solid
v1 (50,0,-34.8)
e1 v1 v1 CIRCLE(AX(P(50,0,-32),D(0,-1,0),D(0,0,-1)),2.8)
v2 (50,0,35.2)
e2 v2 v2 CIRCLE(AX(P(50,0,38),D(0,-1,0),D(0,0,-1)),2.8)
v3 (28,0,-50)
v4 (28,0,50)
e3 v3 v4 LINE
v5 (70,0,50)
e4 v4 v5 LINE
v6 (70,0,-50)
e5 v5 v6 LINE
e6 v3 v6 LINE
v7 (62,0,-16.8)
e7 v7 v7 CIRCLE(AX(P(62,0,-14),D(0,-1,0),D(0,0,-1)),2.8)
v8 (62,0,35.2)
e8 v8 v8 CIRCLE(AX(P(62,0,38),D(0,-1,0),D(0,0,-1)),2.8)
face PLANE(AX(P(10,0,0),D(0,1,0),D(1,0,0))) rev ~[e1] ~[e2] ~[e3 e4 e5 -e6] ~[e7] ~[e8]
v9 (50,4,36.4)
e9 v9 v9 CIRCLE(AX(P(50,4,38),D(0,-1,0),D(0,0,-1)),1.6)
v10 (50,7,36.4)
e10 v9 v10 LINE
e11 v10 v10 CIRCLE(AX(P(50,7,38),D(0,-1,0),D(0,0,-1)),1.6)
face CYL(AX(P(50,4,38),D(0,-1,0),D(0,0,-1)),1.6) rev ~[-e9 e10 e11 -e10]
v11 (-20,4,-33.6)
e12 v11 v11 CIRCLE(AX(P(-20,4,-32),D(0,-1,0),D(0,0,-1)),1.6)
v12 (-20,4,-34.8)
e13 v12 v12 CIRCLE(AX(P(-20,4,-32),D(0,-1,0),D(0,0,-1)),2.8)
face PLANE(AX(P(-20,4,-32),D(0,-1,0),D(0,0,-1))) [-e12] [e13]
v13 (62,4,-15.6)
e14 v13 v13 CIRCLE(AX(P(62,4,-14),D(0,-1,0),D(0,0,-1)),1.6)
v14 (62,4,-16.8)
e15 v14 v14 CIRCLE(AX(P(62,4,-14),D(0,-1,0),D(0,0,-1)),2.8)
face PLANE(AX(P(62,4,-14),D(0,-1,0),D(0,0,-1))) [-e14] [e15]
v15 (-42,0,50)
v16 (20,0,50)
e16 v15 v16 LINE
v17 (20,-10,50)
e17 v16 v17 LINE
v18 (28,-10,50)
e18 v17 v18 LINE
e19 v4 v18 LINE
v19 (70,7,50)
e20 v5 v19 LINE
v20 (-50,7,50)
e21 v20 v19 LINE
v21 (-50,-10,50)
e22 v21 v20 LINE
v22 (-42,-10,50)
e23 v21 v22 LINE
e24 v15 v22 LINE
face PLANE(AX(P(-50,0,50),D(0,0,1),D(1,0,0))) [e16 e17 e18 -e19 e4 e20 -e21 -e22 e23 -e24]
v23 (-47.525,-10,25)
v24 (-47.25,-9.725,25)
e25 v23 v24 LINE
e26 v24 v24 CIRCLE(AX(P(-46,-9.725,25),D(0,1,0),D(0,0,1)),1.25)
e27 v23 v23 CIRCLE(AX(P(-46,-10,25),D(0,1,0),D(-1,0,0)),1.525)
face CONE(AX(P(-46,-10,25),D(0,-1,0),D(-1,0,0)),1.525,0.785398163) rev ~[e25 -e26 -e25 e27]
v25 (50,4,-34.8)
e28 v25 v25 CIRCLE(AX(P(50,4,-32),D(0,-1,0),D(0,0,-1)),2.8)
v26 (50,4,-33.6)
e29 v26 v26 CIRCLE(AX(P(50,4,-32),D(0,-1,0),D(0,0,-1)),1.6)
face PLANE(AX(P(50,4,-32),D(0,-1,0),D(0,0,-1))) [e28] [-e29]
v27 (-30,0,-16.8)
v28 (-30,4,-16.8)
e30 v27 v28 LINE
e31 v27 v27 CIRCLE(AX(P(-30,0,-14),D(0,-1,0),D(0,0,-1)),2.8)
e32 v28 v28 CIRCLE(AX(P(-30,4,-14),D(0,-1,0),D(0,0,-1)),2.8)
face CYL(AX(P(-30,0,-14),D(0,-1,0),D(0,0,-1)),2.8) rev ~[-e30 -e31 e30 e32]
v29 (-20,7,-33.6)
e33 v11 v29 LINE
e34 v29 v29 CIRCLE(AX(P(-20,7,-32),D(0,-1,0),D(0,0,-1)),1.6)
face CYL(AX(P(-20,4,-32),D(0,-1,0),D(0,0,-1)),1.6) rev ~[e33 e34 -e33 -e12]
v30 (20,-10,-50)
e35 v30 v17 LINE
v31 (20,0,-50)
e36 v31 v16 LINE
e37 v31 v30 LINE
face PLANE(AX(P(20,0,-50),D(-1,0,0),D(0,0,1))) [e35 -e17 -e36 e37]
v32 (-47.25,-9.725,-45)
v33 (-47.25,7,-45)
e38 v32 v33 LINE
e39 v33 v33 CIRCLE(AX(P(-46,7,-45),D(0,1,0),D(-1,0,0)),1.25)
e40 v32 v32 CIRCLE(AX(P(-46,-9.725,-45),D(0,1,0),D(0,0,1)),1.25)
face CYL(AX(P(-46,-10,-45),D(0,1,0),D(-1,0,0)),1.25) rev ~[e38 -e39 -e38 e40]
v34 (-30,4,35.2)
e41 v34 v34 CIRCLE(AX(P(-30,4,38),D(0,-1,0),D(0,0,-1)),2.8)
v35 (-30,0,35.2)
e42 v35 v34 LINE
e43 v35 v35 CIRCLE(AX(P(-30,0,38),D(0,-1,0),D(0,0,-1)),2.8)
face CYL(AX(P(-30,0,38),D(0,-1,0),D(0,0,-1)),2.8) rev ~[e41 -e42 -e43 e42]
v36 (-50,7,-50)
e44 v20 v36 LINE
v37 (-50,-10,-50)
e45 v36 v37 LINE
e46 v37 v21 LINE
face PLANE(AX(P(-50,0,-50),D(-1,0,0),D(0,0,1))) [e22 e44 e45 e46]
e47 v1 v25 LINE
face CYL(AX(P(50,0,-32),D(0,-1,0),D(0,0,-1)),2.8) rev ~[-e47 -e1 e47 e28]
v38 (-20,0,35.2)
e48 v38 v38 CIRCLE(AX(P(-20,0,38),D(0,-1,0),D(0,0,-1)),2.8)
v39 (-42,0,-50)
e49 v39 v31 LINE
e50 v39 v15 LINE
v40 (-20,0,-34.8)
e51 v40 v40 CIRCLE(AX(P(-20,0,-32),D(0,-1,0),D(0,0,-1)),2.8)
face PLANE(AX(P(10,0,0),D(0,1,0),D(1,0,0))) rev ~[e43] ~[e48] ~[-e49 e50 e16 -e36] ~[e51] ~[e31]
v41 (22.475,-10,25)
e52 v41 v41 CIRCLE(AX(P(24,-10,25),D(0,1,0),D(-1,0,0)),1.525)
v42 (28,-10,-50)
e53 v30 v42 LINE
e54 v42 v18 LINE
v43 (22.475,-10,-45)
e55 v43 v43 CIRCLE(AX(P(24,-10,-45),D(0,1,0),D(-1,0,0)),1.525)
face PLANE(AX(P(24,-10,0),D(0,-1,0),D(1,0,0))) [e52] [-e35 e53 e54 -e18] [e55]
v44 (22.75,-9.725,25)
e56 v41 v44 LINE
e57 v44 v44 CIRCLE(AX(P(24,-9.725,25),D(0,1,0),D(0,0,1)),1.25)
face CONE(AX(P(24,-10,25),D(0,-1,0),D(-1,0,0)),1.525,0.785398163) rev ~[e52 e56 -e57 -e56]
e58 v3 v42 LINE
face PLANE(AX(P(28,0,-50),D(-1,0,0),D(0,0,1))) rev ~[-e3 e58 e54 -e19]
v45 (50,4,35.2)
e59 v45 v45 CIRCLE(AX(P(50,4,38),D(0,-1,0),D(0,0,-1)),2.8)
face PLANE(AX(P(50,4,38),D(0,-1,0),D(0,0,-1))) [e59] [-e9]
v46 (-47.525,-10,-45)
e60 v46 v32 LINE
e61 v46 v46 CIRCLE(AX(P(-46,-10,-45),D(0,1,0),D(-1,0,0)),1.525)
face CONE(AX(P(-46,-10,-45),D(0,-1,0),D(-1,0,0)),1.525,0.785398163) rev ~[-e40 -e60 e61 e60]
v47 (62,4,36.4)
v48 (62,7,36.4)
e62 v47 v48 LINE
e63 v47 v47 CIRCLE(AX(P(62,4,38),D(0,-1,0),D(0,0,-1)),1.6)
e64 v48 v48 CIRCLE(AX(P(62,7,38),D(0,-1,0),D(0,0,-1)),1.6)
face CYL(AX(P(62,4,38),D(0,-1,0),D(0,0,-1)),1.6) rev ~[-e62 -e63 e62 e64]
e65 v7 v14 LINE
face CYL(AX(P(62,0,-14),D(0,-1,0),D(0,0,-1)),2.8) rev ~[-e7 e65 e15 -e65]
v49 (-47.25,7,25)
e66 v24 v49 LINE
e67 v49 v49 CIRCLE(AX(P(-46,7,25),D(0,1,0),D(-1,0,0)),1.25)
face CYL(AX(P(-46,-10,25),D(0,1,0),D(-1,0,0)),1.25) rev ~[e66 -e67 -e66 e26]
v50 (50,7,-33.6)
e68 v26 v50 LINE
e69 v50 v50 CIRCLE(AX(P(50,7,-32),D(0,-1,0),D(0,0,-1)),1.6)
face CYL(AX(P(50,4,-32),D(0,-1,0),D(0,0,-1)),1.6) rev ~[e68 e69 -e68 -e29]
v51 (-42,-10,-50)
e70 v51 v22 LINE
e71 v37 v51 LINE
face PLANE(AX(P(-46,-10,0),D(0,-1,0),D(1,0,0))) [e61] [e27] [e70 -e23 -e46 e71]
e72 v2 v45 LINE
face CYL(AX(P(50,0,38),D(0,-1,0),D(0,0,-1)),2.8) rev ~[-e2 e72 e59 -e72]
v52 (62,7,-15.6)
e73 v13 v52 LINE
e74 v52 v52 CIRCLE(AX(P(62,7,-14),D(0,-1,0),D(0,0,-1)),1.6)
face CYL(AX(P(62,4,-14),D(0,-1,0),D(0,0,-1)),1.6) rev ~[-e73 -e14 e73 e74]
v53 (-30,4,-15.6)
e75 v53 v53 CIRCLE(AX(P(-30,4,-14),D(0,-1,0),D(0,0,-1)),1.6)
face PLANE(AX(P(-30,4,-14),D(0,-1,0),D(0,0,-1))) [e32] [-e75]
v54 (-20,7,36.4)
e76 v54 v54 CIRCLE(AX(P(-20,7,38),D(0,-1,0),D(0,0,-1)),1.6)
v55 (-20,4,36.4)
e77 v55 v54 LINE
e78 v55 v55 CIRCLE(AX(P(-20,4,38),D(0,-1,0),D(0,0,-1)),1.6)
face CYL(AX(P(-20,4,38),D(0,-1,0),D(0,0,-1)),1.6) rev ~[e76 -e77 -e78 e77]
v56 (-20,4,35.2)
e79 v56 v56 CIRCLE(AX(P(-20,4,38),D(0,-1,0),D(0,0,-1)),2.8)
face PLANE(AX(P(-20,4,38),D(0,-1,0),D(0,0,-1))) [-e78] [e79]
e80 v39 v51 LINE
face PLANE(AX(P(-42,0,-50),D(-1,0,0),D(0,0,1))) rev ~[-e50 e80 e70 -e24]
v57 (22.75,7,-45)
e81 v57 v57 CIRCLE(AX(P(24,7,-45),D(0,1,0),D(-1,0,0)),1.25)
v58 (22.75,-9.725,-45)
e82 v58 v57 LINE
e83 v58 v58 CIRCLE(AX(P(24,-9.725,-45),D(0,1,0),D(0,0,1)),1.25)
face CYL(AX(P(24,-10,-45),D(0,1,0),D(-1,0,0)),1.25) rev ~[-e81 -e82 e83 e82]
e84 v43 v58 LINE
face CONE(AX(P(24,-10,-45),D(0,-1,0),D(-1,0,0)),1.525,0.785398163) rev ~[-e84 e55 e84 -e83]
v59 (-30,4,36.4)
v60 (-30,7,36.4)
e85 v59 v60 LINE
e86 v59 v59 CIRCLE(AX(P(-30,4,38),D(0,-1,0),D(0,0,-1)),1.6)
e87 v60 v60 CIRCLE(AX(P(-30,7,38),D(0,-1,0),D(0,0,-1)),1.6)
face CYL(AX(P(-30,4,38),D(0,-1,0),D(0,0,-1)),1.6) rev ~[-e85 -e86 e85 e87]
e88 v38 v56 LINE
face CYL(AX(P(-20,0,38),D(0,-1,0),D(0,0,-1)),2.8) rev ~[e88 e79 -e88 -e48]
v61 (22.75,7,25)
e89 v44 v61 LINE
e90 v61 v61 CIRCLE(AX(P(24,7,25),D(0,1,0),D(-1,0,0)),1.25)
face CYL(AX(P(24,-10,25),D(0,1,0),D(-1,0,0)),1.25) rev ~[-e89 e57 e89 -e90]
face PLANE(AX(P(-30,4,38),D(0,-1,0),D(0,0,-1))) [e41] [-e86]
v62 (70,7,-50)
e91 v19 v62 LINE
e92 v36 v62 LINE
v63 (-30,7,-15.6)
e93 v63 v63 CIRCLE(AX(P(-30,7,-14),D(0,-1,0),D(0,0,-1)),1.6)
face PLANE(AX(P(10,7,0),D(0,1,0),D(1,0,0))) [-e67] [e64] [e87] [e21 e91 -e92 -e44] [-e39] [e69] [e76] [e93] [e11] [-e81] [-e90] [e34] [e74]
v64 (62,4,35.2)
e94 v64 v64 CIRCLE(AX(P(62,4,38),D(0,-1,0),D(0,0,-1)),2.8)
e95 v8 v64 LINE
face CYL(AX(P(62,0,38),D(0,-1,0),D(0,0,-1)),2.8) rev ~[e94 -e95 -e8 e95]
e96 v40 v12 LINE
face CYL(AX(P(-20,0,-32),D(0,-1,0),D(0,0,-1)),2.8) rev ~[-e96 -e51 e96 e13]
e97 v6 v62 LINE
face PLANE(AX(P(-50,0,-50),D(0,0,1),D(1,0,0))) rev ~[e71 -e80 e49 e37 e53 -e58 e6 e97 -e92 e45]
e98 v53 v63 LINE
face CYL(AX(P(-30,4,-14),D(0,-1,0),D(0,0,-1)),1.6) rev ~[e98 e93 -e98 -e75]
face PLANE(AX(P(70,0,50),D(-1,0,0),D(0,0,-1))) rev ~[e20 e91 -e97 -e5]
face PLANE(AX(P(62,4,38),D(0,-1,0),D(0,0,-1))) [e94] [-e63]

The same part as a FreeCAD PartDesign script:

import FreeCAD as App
import Part
import Sketcher
from FreeCAD import Vector


def add_polygon(sketch, points):
    """Adds a closed chain of lines whose ends are joined by coincident constraints."""
    first, n = sketch.GeometryCount, len(points)
    for a, b in zip(points, points[1:] + points[:1]):
        sketch.addGeometry(Part.LineSegment(App.Vector(*a, 0), App.Vector(*b, 0)), False)
    for i in range(n):
        sketch.addConstraint(Sketcher.Constraint("Coincident", first + i, 2, first + (i + 1) % n, 1))

doc = App.newDocument("Part")
body = doc.addObject("PartDesign::Body", "Body")

# Sketch on XZ plane
sketch1 = body.newObject("Sketcher::SketchObject", "Sketch")
sketch1.AttachmentSupport = (doc.getObject("XZ_Plane"), [""])
sketch1.MapMode = "FlatFace"
add_polygon(sketch1, [(-50, -50), (-50, 50), (70, 50), (70, -50)])  # lines 0-3
sketch1.addConstraint(Sketcher.Constraint("Vertical", 0))
sketch1.addConstraint(Sketcher.Constraint("Horizontal", 1))
sketch1.addConstraint(Sketcher.Constraint("Vertical", 2))
sketch1.addConstraint(Sketcher.Constraint("Horizontal", 3))
sketch1.addConstraint(Sketcher.Constraint("DistanceX", 1, 1, 1, 2, 120.0))
sketch1.addConstraint(Sketcher.Constraint("DistanceY", 0, 1, 0, 2, 100.0))
sketch1.addConstraint(Sketcher.Constraint("DistanceX", 0, 2, -1, 1, 50.0))
sketch1.addConstraint(Sketcher.Constraint("DistanceY", -1, 1, 0, 2, 50.0))
pad1 = body.newObject("PartDesign::Pad", "Pad")
pad1.Profile = sketch1
pad1.Length = 7
pad1.Reversed = True

# Sketch on XZ plane
sketch2 = body.newObject("Sketcher::SketchObject", "Sketch001")
sketch2.AttachmentSupport = (doc.getObject("XZ_Plane"), [""])
sketch2.MapMode = "FlatFace"
sketch2.addGeometry(Part.Circle(Vector(62, 38, 0), Vector(0, 0, 1), 2.8), False)
sketch2.addGeometry(Part.Circle(Vector(-30, 38, 0), Vector(0, 0, 1), 2.8), False)
sketch2.addGeometry(Part.Circle(Vector(-30, -14, 0), Vector(0, 0, 1), 2.8), False)
sketch2.addGeometry(Part.Circle(Vector(62, -14, 0), Vector(0, 0, 1), 2.8), False)
sketch2.addGeometry(Part.Circle(Vector(-20, 38, 0), Vector(0, 0, 1), 2.8), False)
sketch2.addGeometry(Part.Circle(Vector(50, 38, 0), Vector(0, 0, 1), 2.8), False)
sketch2.addGeometry(Part.Circle(Vector(50, -32, 0), Vector(0, 0, 1), 2.8), False)
sketch2.addGeometry(Part.Circle(Vector(-20, -32, 0), Vector(0, 0, 1), 2.8), False)
sketch2.addConstraint(Sketcher.Constraint("Equal", 0, 1))
sketch2.addConstraint(Sketcher.Constraint("Equal", 1, 2))
sketch2.addConstraint(Sketcher.Constraint("Equal", 2, 3))
sketch2.addConstraint(Sketcher.Constraint("Equal", 3, 4))
sketch2.addConstraint(Sketcher.Constraint("Equal", 4, 5))
sketch2.addConstraint(Sketcher.Constraint("Equal", 5, 6))
sketch2.addConstraint(Sketcher.Constraint("Equal", 6, 7))
sketch2.addConstraint(Sketcher.Constraint("Horizontal", 0, 3, 1, 3))
sketch2.addConstraint(Sketcher.Constraint("Horizontal", 2, 3, 3, 3))
sketch2.addConstraint(Sketcher.Constraint("Horizontal", 1, 3, 4, 3))
sketch2.addConstraint(Sketcher.Constraint("Horizontal", 4, 3, 5, 3))
sketch2.addConstraint(Sketcher.Constraint("Horizontal", 6, 3, 7, 3))
sketch2.addConstraint(Sketcher.Constraint("Vertical", 1, 3, 2, 3))
sketch2.addConstraint(Sketcher.Constraint("Vertical", 0, 3, 3, 3))
sketch2.addConstraint(Sketcher.Constraint("Vertical", 5, 3, 6, 3))
sketch2.addConstraint(Sketcher.Constraint("Vertical", 4, 3, 7, 3))
sketch2.addConstraint(Sketcher.Constraint("Diameter", 0, 5.6))
sketch2.addConstraint(Sketcher.Constraint("DistanceX", -1, 1, 0, 3, 62.0))
sketch2.addConstraint(Sketcher.Constraint("DistanceY", -1, 1, 0, 3, 38.0))
sketch2.addConstraint(Sketcher.Constraint("DistanceX", 1, 3, -1, 1, 30.0))
sketch2.addConstraint(Sketcher.Constraint("DistanceY", 2, 3, -1, 1, 14.0))
sketch2.addConstraint(Sketcher.Constraint("DistanceX", 4, 3, -1, 1, 20.0))
sketch2.addConstraint(Sketcher.Constraint("DistanceX", -1, 1, 5, 3, 50.0))
sketch2.addConstraint(Sketcher.Constraint("DistanceY", 6, 3, -1, 1, 32.0))
pocket1 = body.newObject("PartDesign::Pocket", "Pocket")
pocket1.Profile = sketch2
pocket1.Length = 4

# Sketch on XZ plane
sketch3 = body.newObject("Sketcher::SketchObject", "Sketch002")
sketch3.AttachmentSupport = (doc.getObject("XZ_Plane"), [""])
sketch3.MapMode = "FlatFace"
sketch3.AttachmentOffset = App.Placement(Vector(0, 0, -4), App.Rotation())
sketch3.addGeometry(Part.Circle(Vector(62, 38, 0), Vector(0, 0, 1), 1.6), False)
sketch3.addConstraint(Sketcher.Constraint("Diameter", 0, 3.2))
sketch3.addConstraint(Sketcher.Constraint("DistanceX", -1, 1, 0, 3, 62.0))
sketch3.addConstraint(Sketcher.Constraint("DistanceY", -1, 1, 0, 3, 38.0))
pocket2 = body.newObject("PartDesign::Pocket", "Pocket001")
pocket2.Profile = sketch3
pocket2.Type = "UpToFirst"

# Sketch on XZ plane
sketch4 = body.newObject("Sketcher::SketchObject", "Sketch003")
sketch4.AttachmentSupport = (doc.getObject("XZ_Plane"), [""])
sketch4.MapMode = "FlatFace"
sketch4.AttachmentOffset = App.Placement(Vector(0, 0, -4), App.Rotation())
sketch4.addGeometry(Part.Circle(Vector(-30, 38, 0), Vector(0, 0, 1), 1.6), False)
sketch4.addConstraint(Sketcher.Constraint("Diameter", 0, 3.2))
sketch4.addConstraint(Sketcher.Constraint("DistanceX", 0, 3, -1, 1, 30.0))
sketch4.addConstraint(Sketcher.Constraint("DistanceY", -1, 1, 0, 3, 38.0))
pocket3 = body.newObject("PartDesign::Pocket", "Pocket002")
pocket3.Profile = sketch4
pocket3.Type = "UpToFirst"

# Sketch on XZ plane
sketch5 = body.newObject("Sketcher::SketchObject", "Sketch004")
sketch5.AttachmentSupport = (doc.getObject("XZ_Plane"), [""])
sketch5.MapMode = "FlatFace"
sketch5.AttachmentOffset = App.Placement(Vector(0, 0, -4), App.Rotation())
sketch5.addGeometry(Part.Circle(Vector(-30, -14, 0), Vector(0, 0, 1), 1.6), False)
sketch5.addConstraint(Sketcher.Constraint("Diameter", 0, 3.2))
sketch5.addConstraint(Sketcher.Constraint("DistanceX", 0, 3, -1, 1, 30.0))
sketch5.addConstraint(Sketcher.Constraint("DistanceY", 0, 3, -1, 1, 14.0))
pocket4 = body.newObject("PartDesign::Pocket", "Pocket003")
pocket4.Profile = sketch5
pocket4.Type = "UpToFirst"

# Sketch on XZ plane
sketch6 = body.newObject("Sketcher::SketchObject", "Sketch005")
sketch6.AttachmentSupport = (doc.getObject("XZ_Plane"), [""])
sketch6.MapMode = "FlatFace"
sketch6.AttachmentOffset = App.Placement(Vector(0, 0, -4), App.Rotation())
sketch6.addGeometry(Part.Circle(Vector(62, -14, 0), Vector(0, 0, 1), 1.6), False)
sketch6.addConstraint(Sketcher.Constraint("Diameter", 0, 3.2))
sketch6.addConstraint(Sketcher.Constraint("DistanceX", -1, 1, 0, 3, 62.0))
sketch6.addConstraint(Sketcher.Constraint("DistanceY", 0, 3, -1, 1, 14.0))
pocket5 = body.newObject("PartDesign::Pocket", "Pocket004")
pocket5.Profile = sketch6
pocket5.Type = "UpToFirst"

# Sketch on XZ plane
sketch7 = body.newObject("Sketcher::SketchObject", "Sketch006")
sketch7.AttachmentSupport = (doc.getObject("XZ_Plane"), [""])
sketch7.MapMode = "FlatFace"
sketch7.AttachmentOffset = App.Placement(Vector(0, 0, -4), App.Rotation())
sketch7.addGeometry(Part.Circle(Vector(-20, 38, 0), Vector(0, 0, 1), 1.6), False)
sketch7.addConstraint(Sketcher.Constraint("Diameter", 0, 3.2))
sketch7.addConstraint(Sketcher.Constraint("DistanceX", 0, 3, -1, 1, 20.0))
sketch7.addConstraint(Sketcher.Constraint("DistanceY", -1, 1, 0, 3, 38.0))
pocket6 = body.newObject("PartDesign::Pocket", "Pocket005")
pocket6.Profile = sketch7
pocket6.Type = "UpToFirst"

# Sketch on XZ plane
sketch8 = body.newObject("Sketcher::SketchObject", "Sketch007")
sketch8.AttachmentSupport = (doc.getObject("XZ_Plane"), [""])
sketch8.MapMode = "FlatFace"
sketch8.AttachmentOffset = App.Placement(Vector(0, 0, -4), App.Rotation())
sketch8.addGeometry(Part.Circle(Vector(50, 38, 0), Vector(0, 0, 1), 1.6), False)
sketch8.addConstraint(Sketcher.Constraint("Diameter", 0, 3.2))
sketch8.addConstraint(Sketcher.Constraint("DistanceX", -1, 1, 0, 3, 50.0))
sketch8.addConstraint(Sketcher.Constraint("DistanceY", -1, 1, 0, 3, 38.0))
pocket7 = body.newObject("PartDesign::Pocket", "Pocket006")
pocket7.Profile = sketch8
pocket7.Type = "UpToFirst"

# Sketch on XZ plane
sketch9 = body.newObject("Sketcher::SketchObject", "Sketch008")
sketch9.AttachmentSupport = (doc.getObject("XZ_Plane"), [""])
sketch9.MapMode = "FlatFace"
sketch9.AttachmentOffset = App.Placement(Vector(0, 0, -4), App.Rotation())
sketch9.addGeometry(Part.Circle(Vector(50, -32, 0), Vector(0, 0, 1), 1.6), False)
sketch9.addConstraint(Sketcher.Constraint("Diameter", 0, 3.2))
sketch9.addConstraint(Sketcher.Constraint("DistanceX", -1, 1, 0, 3, 50.0))
sketch9.addConstraint(Sketcher.Constraint("DistanceY", 0, 3, -1, 1, 32.0))
pocket8 = body.newObject("PartDesign::Pocket", "Pocket007")
pocket8.Profile = sketch9
pocket8.Type = "UpToFirst"

# Sketch on XZ plane
sketch10 = body.newObject("Sketcher::SketchObject", "Sketch009")
sketch10.AttachmentSupport = (doc.getObject("XZ_Plane"), [""])
sketch10.MapMode = "FlatFace"
sketch10.AttachmentOffset = App.Placement(Vector(0, 0, -4), App.Rotation())
sketch10.addGeometry(Part.Circle(Vector(-20, -32, 0), Vector(0, 0, 1), 1.6), False)
sketch10.addConstraint(Sketcher.Constraint("Diameter", 0, 3.2))
sketch10.addConstraint(Sketcher.Constraint("DistanceX", 0, 3, -1, 1, 20.0))
sketch10.addConstraint(Sketcher.Constraint("DistanceY", 0, 3, -1, 1, 32.0))
pocket9 = body.newObject("PartDesign::Pocket", "Pocket008")
pocket9.Profile = sketch10
pocket9.Type = "UpToFirst"

# Sketch on XZ plane
sketch11 = body.newObject("Sketcher::SketchObject", "Sketch010")
sketch11.AttachmentSupport = (doc.getObject("XZ_Plane"), [""])
sketch11.MapMode = "FlatFace"
add_polygon(sketch11, [(-50, 50), (-50, -50), (-42, -50), (-42, 50)])  # lines 0-3
add_polygon(sketch11, [(20, 50), (20, -50), (28, -50), (28, 50)])  # lines 4-7
sketch11.addConstraint(Sketcher.Constraint("Vertical", 0))
sketch11.addConstraint(Sketcher.Constraint("Horizontal", 1))
sketch11.addConstraint(Sketcher.Constraint("Vertical", 2))
sketch11.addConstraint(Sketcher.Constraint("Horizontal", 3))
sketch11.addConstraint(Sketcher.Constraint("Vertical", 4))
sketch11.addConstraint(Sketcher.Constraint("Horizontal", 5))
sketch11.addConstraint(Sketcher.Constraint("Vertical", 6))
sketch11.addConstraint(Sketcher.Constraint("Horizontal", 7))
sketch11.addConstraint(Sketcher.Constraint("Horizontal", 1, 2, 4, 2))
sketch11.addConstraint(Sketcher.Constraint("Horizontal", 3, 2, 6, 2))
sketch11.addConstraint(Sketcher.Constraint("Equal", 3, 5))
sketch11.addConstraint(Sketcher.Constraint("DistanceX", 1, 1, 1, 2, 8.0))
sketch11.addConstraint(Sketcher.Constraint("DistanceY", 0, 2, 0, 1, 100.0))
sketch11.addConstraint(Sketcher.Constraint("DistanceX", 0, 2, -1, 1, 50.0))
sketch11.addConstraint(Sketcher.Constraint("DistanceY", 0, 2, -1, 1, 50.0))
sketch11.addConstraint(Sketcher.Constraint("DistanceX", -1, 1, 4, 2, 20.0))
pad2 = body.newObject("PartDesign::Pad", "Pad001")
pad2.Profile = sketch11
pad2.Length = 10

# Sketch on XZ plane
sketch12 = body.newObject("Sketcher::SketchObject", "Sketch011")
sketch12.AttachmentSupport = (doc.getObject("XZ_Plane"), [""])
sketch12.MapMode = "FlatFace"
sketch12.AttachmentOffset = App.Placement(Vector(0, 0, 10), App.Rotation())
sketch12.addGeometry(Part.Circle(Vector(-46, -45, 0), Vector(0, 0, 1), 1.2), False)
sketch12.addGeometry(Part.Circle(Vector(24, -45, 0), Vector(0, 0, 1), 1.2), False)
sketch12.addGeometry(Part.Circle(Vector(24, 25, 0), Vector(0, 0, 1), 1.2), False)
sketch12.addGeometry(Part.Circle(Vector(-46, 25, 0), Vector(0, 0, 1), 1.2), False)
sketch12.addConstraint(Sketcher.Constraint("Equal", 0, 1))
sketch12.addConstraint(Sketcher.Constraint("Equal", 1, 2))
sketch12.addConstraint(Sketcher.Constraint("Equal", 2, 3))
sketch12.addConstraint(Sketcher.Constraint("Horizontal", 0, 3, 1, 3))
sketch12.addConstraint(Sketcher.Constraint("Horizontal", 2, 3, 3, 3))
sketch12.addConstraint(Sketcher.Constraint("Vertical", 1, 3, 2, 3))
sketch12.addConstraint(Sketcher.Constraint("Vertical", 0, 3, 3, 3))
sketch12.addConstraint(Sketcher.Constraint("Diameter", 0, 2.5))
sketch12.addConstraint(Sketcher.Constraint("DistanceX", 0, 3, -1, 1, 46.0))
sketch12.addConstraint(Sketcher.Constraint("DistanceY", 0, 3, -1, 1, 45.0))
sketch12.addConstraint(Sketcher.Constraint("DistanceX", -1, 1, 1, 3, 24.0))
sketch12.addConstraint(Sketcher.Constraint("DistanceY", -1, 1, 2, 3, 25.0))
doc.recompute()
hole = body.newObject("PartDesign::Hole", "Hole")
hole.Profile = sketch12
hole.ThreadType = "None"
hole.Diameter = 2.5
hole.DepthType = "ThroughAll"
hole.HoleCutType = "Countersink"
hole.HoleCutDiameter = 3.05
hole.HoleCutCountersinkAngle = 90

doc.recompute()
